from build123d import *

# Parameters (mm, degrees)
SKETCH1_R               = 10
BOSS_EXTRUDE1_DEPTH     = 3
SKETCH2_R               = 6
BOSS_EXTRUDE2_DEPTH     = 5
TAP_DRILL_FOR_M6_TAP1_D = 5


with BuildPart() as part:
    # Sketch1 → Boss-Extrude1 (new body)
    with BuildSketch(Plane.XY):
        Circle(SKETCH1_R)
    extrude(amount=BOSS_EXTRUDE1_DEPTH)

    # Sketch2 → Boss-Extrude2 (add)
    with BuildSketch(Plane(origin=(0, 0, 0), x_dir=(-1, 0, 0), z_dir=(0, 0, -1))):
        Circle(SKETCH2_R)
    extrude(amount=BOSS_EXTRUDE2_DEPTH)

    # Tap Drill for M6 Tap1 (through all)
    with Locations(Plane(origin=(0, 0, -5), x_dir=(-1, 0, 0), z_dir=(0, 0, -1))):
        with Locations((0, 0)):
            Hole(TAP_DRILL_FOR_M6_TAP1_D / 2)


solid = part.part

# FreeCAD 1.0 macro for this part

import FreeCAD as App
import Part
import Sketcher
from FreeCAD import Vector
Q = App.Units.Quantity

doc = App.newDocument("Part")
body = doc.addObject("PartDesign::Body", "Body")

sketch1 = body.newObject("Sketcher::SketchObject", "Sketch")
sketch1.AttachmentSupport = (doc.getObject("XY_Plane"), [""])
sketch1.MapMode = "FlatFace"
sketch1.addGeometry(Part.Circle(Vector(0, 0, 0), Vector(0, 0, 1), 10), False)
sketch1.addConstraint(Sketcher.Constraint("Coincident", 0, 3, -1, 1))
sketch1.addConstraint(Sketcher.Constraint("Diameter", 0, Q("20 mm")))
pad1 = body.newObject("PartDesign::Pad", "Pad")
pad1.Profile = sketch1
pad1.Length = 3

sketch2 = body.newObject("Sketcher::SketchObject", "Sketch001")
sketch2.AttachmentSupport = (doc.getObject("XY_Plane"), [""])
sketch2.MapMode = "FlatFace"
sketch2.addGeometry(Part.Circle(Vector(0, 0, 0), Vector(0, 0, 1), 6), False)
sketch2.addConstraint(Sketcher.Constraint("Coincident", 0, 3, -1, 1))
sketch2.addConstraint(Sketcher.Constraint("Diameter", 0, Q("12 mm")))
pad2 = body.newObject("PartDesign::Pad", "Pad001")
pad2.Profile = sketch2
pad2.Length = 5
pad2.Reversed = True

sketch3 = body.newObject("Sketcher::SketchObject", "Sketch002")
sketch3.AttachmentSupport = (doc.getObject("XY_Plane"), [""])
sketch3.MapMode = "FlatFace"
sketch3.AttachmentOffset = App.Placement(Vector(0, 0, -5), App.Rotation())
sketch3.addGeometry(Part.Circle(Vector(0, 0, 0), Vector(0, 0, 1), 2.5), False)
sketch3.addConstraint(Sketcher.Constraint("Coincident", 0, 3, -1, 1))
sketch3.addConstraint(Sketcher.Constraint("Diameter", 0, Q("5 mm")))
doc.recompute()
hole = body.newObject("PartDesign::Hole", "Hole")
hole.Profile = sketch3
hole.ThreadType = "None"
hole.Diameter = 5
hole.DepthType = "ThroughAll"
hole.Reversed = True

doc.recompute()
